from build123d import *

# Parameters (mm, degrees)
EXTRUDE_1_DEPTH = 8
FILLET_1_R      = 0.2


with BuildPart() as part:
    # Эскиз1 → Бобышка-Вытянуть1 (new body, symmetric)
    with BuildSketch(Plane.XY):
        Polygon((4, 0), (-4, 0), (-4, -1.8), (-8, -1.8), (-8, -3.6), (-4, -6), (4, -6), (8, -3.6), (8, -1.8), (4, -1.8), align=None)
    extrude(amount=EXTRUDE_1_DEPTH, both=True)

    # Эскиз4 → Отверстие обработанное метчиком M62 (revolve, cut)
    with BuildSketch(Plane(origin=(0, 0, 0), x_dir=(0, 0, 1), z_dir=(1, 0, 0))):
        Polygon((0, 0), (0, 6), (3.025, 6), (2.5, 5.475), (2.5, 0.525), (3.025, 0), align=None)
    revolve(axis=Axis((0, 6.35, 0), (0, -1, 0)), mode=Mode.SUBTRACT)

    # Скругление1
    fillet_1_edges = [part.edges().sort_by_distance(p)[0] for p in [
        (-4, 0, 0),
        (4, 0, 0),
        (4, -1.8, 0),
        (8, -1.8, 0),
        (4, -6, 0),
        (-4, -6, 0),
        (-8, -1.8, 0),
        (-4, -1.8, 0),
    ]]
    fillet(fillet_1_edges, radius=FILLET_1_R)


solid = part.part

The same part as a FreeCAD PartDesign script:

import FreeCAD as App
import Part
import Sketcher


def edges_at(feature, points):
    """Names of the edges that pass closest to the given points."""
    edges = feature.Shape.Edges
    near = lambda p: min(range(len(edges)), key=lambda i: edges[i].distToShape(Part.Vertex(*p))[0])
    return sorted({f"Edge{near(p) + 1}" for p in points})


def add_polygon(sketch, points):
    """Adds a closed chain of lines whose ends are joined by coincident constraints."""
    first, n = sketch.GeometryCount, len(points)
    for a, b in zip(points, points[1:] + points[:1]):
        sketch.addGeometry(Part.LineSegment(App.Vector(*a, 0), App.Vector(*b, 0)), False)
    for i in range(n):
        sketch.addConstraint(Sketcher.Constraint("Coincident", first + i, 2, first + (i + 1) % n, 1))

doc = App.newDocument("Part")
body = doc.addObject("PartDesign::Body", "Body")

# Sketch on XY plane
sketch1 = body.newObject("Sketcher::SketchObject", "Sketch")
sketch1.AttachmentSupport = (doc.getObject("XY_Plane"), [""])
sketch1.MapMode = "FlatFace"
add_polygon(sketch1, [(4, 0), (-4, 0), (-4, -1.8), (-8, -1.8), (-8, -3.6), (-4, -6), (4, -6), (8, -3.6), (8, -1.8), (4, -1.8)])  # lines 0-9
sketch1.addConstraint(Sketcher.Constraint("Horizontal", 0))
sketch1.addConstraint(Sketcher.Constraint("Vertical", 1))
sketch1.addConstraint(Sketcher.Constraint("Horizontal", 2))
sketch1.addConstraint(Sketcher.Constraint("Vertical", 3))
sketch1.addConstraint(Sketcher.Constraint("Horizontal", 5))
sketch1.addConstraint(Sketcher.Constraint("Vertical", 7))
sketch1.addConstraint(Sketcher.Constraint("Horizontal", 8))
sketch1.addConstraint(Sketcher.Constraint("Vertical", 9))
sketch1.addConstraint(Sketcher.Constraint("Symmetric", 0, 2, 9, 2, -1, 1))
sketch1.addConstraint(Sketcher.Constraint("Symmetric", 3, 2, 6, 2, -2))
sketch1.addConstraint(Sketcher.Constraint("Horizontal", 2, 2, 7, 2))
sketch1.addConstraint(Sketcher.Constraint("Vertical", 1, 2, 4, 2))
sketch1.addConstraint(Sketcher.Constraint("Vertical", 5, 2, 8, 2))
sketch1.addConstraint(Sketcher.Constraint("Equal", 1, 3))
sketch1.addConstraint(Sketcher.Constraint("DistanceX", 0, 2, 0, 1, 8.0))
sketch1.addConstraint(Sketcher.Constraint("DistanceX", 2, 2, 2, 1, 4.0))
sketch1.addConstraint(Sketcher.Constraint("DistanceY", 1, 2, 1, 1, 1.8))
sketch1.addConstraint(Sketcher.Constraint("DistanceY", 4, 2, -1, 1, 6.0))
pad1 = body.newObject("PartDesign::Pad", "Pad")
pad1.Profile = sketch1
pad1.Length = 16
pad1.Midplane = True

# Sketch on YZ plane
sketch2 = body.newObject("Sketcher::SketchObject", "Sketch001")
sketch2.AttachmentSupport = (doc.getObject("YZ_Plane"), [""])
sketch2.MapMode = "FlatFace"
add_polygon(sketch2, [(-6, 0), (0, 0), (0, 3), (-0.5, 2.5), (-5.5, 2.5), (-6, 3)])  # lines 0-5
sketch2.addConstraint(Sketcher.Constraint("Horizontal", 0))
sketch2.addConstraint(Sketcher.Constraint("Vertical", 1))
sketch2.addConstraint(Sketcher.Constraint("Horizontal", 3))
sketch2.addConstraint(Sketcher.Constraint("Vertical", 5))
sketch2.addConstraint(Sketcher.Constraint("Coincident", 0, 2, -1, 1))
sketch2.addConstraint(Sketcher.Constraint("Perpendicular", 2, 4))
sketch2.addConstraint(Sketcher.Constraint("Horizontal", 1, 2, 4, 2))
sketch2.addConstraint(Sketcher.Constraint("Equal", 2, 4))
sketch2.addConstraint(Sketcher.Constraint("DistanceX", 0, 1, 0, 2, 6.0))
sketch2.addConstraint(Sketcher.Constraint("DistanceX", 3, 2, 3, 1, 4.95))
sketch2.addConstraint(Sketcher.Constraint("DistanceY", -1, 1, 2, 2, 2.5))
groove = body.newObject("PartDesign::Groove", "Groove")
groove.Profile = sketch2
groove.ReferenceAxis = (sketch2, ["H_Axis"])
groove.Angle = 360
doc.recompute()

fillet = body.newObject("PartDesign::Fillet", "Fillet")
fillet.Base = (groove, edges_at(groove, [
    (-4, 0, 0),
    (4, 0, 0),
    (4, -1.8, 0),
    (8, -1.8, 0),
    (4, -6, 0),
    (-4, -6, 0),
    (-8, -1.8, 0),
    (-4, -1.8, 0),
]))
fillet.Radius = 0.2

doc.recompute()
